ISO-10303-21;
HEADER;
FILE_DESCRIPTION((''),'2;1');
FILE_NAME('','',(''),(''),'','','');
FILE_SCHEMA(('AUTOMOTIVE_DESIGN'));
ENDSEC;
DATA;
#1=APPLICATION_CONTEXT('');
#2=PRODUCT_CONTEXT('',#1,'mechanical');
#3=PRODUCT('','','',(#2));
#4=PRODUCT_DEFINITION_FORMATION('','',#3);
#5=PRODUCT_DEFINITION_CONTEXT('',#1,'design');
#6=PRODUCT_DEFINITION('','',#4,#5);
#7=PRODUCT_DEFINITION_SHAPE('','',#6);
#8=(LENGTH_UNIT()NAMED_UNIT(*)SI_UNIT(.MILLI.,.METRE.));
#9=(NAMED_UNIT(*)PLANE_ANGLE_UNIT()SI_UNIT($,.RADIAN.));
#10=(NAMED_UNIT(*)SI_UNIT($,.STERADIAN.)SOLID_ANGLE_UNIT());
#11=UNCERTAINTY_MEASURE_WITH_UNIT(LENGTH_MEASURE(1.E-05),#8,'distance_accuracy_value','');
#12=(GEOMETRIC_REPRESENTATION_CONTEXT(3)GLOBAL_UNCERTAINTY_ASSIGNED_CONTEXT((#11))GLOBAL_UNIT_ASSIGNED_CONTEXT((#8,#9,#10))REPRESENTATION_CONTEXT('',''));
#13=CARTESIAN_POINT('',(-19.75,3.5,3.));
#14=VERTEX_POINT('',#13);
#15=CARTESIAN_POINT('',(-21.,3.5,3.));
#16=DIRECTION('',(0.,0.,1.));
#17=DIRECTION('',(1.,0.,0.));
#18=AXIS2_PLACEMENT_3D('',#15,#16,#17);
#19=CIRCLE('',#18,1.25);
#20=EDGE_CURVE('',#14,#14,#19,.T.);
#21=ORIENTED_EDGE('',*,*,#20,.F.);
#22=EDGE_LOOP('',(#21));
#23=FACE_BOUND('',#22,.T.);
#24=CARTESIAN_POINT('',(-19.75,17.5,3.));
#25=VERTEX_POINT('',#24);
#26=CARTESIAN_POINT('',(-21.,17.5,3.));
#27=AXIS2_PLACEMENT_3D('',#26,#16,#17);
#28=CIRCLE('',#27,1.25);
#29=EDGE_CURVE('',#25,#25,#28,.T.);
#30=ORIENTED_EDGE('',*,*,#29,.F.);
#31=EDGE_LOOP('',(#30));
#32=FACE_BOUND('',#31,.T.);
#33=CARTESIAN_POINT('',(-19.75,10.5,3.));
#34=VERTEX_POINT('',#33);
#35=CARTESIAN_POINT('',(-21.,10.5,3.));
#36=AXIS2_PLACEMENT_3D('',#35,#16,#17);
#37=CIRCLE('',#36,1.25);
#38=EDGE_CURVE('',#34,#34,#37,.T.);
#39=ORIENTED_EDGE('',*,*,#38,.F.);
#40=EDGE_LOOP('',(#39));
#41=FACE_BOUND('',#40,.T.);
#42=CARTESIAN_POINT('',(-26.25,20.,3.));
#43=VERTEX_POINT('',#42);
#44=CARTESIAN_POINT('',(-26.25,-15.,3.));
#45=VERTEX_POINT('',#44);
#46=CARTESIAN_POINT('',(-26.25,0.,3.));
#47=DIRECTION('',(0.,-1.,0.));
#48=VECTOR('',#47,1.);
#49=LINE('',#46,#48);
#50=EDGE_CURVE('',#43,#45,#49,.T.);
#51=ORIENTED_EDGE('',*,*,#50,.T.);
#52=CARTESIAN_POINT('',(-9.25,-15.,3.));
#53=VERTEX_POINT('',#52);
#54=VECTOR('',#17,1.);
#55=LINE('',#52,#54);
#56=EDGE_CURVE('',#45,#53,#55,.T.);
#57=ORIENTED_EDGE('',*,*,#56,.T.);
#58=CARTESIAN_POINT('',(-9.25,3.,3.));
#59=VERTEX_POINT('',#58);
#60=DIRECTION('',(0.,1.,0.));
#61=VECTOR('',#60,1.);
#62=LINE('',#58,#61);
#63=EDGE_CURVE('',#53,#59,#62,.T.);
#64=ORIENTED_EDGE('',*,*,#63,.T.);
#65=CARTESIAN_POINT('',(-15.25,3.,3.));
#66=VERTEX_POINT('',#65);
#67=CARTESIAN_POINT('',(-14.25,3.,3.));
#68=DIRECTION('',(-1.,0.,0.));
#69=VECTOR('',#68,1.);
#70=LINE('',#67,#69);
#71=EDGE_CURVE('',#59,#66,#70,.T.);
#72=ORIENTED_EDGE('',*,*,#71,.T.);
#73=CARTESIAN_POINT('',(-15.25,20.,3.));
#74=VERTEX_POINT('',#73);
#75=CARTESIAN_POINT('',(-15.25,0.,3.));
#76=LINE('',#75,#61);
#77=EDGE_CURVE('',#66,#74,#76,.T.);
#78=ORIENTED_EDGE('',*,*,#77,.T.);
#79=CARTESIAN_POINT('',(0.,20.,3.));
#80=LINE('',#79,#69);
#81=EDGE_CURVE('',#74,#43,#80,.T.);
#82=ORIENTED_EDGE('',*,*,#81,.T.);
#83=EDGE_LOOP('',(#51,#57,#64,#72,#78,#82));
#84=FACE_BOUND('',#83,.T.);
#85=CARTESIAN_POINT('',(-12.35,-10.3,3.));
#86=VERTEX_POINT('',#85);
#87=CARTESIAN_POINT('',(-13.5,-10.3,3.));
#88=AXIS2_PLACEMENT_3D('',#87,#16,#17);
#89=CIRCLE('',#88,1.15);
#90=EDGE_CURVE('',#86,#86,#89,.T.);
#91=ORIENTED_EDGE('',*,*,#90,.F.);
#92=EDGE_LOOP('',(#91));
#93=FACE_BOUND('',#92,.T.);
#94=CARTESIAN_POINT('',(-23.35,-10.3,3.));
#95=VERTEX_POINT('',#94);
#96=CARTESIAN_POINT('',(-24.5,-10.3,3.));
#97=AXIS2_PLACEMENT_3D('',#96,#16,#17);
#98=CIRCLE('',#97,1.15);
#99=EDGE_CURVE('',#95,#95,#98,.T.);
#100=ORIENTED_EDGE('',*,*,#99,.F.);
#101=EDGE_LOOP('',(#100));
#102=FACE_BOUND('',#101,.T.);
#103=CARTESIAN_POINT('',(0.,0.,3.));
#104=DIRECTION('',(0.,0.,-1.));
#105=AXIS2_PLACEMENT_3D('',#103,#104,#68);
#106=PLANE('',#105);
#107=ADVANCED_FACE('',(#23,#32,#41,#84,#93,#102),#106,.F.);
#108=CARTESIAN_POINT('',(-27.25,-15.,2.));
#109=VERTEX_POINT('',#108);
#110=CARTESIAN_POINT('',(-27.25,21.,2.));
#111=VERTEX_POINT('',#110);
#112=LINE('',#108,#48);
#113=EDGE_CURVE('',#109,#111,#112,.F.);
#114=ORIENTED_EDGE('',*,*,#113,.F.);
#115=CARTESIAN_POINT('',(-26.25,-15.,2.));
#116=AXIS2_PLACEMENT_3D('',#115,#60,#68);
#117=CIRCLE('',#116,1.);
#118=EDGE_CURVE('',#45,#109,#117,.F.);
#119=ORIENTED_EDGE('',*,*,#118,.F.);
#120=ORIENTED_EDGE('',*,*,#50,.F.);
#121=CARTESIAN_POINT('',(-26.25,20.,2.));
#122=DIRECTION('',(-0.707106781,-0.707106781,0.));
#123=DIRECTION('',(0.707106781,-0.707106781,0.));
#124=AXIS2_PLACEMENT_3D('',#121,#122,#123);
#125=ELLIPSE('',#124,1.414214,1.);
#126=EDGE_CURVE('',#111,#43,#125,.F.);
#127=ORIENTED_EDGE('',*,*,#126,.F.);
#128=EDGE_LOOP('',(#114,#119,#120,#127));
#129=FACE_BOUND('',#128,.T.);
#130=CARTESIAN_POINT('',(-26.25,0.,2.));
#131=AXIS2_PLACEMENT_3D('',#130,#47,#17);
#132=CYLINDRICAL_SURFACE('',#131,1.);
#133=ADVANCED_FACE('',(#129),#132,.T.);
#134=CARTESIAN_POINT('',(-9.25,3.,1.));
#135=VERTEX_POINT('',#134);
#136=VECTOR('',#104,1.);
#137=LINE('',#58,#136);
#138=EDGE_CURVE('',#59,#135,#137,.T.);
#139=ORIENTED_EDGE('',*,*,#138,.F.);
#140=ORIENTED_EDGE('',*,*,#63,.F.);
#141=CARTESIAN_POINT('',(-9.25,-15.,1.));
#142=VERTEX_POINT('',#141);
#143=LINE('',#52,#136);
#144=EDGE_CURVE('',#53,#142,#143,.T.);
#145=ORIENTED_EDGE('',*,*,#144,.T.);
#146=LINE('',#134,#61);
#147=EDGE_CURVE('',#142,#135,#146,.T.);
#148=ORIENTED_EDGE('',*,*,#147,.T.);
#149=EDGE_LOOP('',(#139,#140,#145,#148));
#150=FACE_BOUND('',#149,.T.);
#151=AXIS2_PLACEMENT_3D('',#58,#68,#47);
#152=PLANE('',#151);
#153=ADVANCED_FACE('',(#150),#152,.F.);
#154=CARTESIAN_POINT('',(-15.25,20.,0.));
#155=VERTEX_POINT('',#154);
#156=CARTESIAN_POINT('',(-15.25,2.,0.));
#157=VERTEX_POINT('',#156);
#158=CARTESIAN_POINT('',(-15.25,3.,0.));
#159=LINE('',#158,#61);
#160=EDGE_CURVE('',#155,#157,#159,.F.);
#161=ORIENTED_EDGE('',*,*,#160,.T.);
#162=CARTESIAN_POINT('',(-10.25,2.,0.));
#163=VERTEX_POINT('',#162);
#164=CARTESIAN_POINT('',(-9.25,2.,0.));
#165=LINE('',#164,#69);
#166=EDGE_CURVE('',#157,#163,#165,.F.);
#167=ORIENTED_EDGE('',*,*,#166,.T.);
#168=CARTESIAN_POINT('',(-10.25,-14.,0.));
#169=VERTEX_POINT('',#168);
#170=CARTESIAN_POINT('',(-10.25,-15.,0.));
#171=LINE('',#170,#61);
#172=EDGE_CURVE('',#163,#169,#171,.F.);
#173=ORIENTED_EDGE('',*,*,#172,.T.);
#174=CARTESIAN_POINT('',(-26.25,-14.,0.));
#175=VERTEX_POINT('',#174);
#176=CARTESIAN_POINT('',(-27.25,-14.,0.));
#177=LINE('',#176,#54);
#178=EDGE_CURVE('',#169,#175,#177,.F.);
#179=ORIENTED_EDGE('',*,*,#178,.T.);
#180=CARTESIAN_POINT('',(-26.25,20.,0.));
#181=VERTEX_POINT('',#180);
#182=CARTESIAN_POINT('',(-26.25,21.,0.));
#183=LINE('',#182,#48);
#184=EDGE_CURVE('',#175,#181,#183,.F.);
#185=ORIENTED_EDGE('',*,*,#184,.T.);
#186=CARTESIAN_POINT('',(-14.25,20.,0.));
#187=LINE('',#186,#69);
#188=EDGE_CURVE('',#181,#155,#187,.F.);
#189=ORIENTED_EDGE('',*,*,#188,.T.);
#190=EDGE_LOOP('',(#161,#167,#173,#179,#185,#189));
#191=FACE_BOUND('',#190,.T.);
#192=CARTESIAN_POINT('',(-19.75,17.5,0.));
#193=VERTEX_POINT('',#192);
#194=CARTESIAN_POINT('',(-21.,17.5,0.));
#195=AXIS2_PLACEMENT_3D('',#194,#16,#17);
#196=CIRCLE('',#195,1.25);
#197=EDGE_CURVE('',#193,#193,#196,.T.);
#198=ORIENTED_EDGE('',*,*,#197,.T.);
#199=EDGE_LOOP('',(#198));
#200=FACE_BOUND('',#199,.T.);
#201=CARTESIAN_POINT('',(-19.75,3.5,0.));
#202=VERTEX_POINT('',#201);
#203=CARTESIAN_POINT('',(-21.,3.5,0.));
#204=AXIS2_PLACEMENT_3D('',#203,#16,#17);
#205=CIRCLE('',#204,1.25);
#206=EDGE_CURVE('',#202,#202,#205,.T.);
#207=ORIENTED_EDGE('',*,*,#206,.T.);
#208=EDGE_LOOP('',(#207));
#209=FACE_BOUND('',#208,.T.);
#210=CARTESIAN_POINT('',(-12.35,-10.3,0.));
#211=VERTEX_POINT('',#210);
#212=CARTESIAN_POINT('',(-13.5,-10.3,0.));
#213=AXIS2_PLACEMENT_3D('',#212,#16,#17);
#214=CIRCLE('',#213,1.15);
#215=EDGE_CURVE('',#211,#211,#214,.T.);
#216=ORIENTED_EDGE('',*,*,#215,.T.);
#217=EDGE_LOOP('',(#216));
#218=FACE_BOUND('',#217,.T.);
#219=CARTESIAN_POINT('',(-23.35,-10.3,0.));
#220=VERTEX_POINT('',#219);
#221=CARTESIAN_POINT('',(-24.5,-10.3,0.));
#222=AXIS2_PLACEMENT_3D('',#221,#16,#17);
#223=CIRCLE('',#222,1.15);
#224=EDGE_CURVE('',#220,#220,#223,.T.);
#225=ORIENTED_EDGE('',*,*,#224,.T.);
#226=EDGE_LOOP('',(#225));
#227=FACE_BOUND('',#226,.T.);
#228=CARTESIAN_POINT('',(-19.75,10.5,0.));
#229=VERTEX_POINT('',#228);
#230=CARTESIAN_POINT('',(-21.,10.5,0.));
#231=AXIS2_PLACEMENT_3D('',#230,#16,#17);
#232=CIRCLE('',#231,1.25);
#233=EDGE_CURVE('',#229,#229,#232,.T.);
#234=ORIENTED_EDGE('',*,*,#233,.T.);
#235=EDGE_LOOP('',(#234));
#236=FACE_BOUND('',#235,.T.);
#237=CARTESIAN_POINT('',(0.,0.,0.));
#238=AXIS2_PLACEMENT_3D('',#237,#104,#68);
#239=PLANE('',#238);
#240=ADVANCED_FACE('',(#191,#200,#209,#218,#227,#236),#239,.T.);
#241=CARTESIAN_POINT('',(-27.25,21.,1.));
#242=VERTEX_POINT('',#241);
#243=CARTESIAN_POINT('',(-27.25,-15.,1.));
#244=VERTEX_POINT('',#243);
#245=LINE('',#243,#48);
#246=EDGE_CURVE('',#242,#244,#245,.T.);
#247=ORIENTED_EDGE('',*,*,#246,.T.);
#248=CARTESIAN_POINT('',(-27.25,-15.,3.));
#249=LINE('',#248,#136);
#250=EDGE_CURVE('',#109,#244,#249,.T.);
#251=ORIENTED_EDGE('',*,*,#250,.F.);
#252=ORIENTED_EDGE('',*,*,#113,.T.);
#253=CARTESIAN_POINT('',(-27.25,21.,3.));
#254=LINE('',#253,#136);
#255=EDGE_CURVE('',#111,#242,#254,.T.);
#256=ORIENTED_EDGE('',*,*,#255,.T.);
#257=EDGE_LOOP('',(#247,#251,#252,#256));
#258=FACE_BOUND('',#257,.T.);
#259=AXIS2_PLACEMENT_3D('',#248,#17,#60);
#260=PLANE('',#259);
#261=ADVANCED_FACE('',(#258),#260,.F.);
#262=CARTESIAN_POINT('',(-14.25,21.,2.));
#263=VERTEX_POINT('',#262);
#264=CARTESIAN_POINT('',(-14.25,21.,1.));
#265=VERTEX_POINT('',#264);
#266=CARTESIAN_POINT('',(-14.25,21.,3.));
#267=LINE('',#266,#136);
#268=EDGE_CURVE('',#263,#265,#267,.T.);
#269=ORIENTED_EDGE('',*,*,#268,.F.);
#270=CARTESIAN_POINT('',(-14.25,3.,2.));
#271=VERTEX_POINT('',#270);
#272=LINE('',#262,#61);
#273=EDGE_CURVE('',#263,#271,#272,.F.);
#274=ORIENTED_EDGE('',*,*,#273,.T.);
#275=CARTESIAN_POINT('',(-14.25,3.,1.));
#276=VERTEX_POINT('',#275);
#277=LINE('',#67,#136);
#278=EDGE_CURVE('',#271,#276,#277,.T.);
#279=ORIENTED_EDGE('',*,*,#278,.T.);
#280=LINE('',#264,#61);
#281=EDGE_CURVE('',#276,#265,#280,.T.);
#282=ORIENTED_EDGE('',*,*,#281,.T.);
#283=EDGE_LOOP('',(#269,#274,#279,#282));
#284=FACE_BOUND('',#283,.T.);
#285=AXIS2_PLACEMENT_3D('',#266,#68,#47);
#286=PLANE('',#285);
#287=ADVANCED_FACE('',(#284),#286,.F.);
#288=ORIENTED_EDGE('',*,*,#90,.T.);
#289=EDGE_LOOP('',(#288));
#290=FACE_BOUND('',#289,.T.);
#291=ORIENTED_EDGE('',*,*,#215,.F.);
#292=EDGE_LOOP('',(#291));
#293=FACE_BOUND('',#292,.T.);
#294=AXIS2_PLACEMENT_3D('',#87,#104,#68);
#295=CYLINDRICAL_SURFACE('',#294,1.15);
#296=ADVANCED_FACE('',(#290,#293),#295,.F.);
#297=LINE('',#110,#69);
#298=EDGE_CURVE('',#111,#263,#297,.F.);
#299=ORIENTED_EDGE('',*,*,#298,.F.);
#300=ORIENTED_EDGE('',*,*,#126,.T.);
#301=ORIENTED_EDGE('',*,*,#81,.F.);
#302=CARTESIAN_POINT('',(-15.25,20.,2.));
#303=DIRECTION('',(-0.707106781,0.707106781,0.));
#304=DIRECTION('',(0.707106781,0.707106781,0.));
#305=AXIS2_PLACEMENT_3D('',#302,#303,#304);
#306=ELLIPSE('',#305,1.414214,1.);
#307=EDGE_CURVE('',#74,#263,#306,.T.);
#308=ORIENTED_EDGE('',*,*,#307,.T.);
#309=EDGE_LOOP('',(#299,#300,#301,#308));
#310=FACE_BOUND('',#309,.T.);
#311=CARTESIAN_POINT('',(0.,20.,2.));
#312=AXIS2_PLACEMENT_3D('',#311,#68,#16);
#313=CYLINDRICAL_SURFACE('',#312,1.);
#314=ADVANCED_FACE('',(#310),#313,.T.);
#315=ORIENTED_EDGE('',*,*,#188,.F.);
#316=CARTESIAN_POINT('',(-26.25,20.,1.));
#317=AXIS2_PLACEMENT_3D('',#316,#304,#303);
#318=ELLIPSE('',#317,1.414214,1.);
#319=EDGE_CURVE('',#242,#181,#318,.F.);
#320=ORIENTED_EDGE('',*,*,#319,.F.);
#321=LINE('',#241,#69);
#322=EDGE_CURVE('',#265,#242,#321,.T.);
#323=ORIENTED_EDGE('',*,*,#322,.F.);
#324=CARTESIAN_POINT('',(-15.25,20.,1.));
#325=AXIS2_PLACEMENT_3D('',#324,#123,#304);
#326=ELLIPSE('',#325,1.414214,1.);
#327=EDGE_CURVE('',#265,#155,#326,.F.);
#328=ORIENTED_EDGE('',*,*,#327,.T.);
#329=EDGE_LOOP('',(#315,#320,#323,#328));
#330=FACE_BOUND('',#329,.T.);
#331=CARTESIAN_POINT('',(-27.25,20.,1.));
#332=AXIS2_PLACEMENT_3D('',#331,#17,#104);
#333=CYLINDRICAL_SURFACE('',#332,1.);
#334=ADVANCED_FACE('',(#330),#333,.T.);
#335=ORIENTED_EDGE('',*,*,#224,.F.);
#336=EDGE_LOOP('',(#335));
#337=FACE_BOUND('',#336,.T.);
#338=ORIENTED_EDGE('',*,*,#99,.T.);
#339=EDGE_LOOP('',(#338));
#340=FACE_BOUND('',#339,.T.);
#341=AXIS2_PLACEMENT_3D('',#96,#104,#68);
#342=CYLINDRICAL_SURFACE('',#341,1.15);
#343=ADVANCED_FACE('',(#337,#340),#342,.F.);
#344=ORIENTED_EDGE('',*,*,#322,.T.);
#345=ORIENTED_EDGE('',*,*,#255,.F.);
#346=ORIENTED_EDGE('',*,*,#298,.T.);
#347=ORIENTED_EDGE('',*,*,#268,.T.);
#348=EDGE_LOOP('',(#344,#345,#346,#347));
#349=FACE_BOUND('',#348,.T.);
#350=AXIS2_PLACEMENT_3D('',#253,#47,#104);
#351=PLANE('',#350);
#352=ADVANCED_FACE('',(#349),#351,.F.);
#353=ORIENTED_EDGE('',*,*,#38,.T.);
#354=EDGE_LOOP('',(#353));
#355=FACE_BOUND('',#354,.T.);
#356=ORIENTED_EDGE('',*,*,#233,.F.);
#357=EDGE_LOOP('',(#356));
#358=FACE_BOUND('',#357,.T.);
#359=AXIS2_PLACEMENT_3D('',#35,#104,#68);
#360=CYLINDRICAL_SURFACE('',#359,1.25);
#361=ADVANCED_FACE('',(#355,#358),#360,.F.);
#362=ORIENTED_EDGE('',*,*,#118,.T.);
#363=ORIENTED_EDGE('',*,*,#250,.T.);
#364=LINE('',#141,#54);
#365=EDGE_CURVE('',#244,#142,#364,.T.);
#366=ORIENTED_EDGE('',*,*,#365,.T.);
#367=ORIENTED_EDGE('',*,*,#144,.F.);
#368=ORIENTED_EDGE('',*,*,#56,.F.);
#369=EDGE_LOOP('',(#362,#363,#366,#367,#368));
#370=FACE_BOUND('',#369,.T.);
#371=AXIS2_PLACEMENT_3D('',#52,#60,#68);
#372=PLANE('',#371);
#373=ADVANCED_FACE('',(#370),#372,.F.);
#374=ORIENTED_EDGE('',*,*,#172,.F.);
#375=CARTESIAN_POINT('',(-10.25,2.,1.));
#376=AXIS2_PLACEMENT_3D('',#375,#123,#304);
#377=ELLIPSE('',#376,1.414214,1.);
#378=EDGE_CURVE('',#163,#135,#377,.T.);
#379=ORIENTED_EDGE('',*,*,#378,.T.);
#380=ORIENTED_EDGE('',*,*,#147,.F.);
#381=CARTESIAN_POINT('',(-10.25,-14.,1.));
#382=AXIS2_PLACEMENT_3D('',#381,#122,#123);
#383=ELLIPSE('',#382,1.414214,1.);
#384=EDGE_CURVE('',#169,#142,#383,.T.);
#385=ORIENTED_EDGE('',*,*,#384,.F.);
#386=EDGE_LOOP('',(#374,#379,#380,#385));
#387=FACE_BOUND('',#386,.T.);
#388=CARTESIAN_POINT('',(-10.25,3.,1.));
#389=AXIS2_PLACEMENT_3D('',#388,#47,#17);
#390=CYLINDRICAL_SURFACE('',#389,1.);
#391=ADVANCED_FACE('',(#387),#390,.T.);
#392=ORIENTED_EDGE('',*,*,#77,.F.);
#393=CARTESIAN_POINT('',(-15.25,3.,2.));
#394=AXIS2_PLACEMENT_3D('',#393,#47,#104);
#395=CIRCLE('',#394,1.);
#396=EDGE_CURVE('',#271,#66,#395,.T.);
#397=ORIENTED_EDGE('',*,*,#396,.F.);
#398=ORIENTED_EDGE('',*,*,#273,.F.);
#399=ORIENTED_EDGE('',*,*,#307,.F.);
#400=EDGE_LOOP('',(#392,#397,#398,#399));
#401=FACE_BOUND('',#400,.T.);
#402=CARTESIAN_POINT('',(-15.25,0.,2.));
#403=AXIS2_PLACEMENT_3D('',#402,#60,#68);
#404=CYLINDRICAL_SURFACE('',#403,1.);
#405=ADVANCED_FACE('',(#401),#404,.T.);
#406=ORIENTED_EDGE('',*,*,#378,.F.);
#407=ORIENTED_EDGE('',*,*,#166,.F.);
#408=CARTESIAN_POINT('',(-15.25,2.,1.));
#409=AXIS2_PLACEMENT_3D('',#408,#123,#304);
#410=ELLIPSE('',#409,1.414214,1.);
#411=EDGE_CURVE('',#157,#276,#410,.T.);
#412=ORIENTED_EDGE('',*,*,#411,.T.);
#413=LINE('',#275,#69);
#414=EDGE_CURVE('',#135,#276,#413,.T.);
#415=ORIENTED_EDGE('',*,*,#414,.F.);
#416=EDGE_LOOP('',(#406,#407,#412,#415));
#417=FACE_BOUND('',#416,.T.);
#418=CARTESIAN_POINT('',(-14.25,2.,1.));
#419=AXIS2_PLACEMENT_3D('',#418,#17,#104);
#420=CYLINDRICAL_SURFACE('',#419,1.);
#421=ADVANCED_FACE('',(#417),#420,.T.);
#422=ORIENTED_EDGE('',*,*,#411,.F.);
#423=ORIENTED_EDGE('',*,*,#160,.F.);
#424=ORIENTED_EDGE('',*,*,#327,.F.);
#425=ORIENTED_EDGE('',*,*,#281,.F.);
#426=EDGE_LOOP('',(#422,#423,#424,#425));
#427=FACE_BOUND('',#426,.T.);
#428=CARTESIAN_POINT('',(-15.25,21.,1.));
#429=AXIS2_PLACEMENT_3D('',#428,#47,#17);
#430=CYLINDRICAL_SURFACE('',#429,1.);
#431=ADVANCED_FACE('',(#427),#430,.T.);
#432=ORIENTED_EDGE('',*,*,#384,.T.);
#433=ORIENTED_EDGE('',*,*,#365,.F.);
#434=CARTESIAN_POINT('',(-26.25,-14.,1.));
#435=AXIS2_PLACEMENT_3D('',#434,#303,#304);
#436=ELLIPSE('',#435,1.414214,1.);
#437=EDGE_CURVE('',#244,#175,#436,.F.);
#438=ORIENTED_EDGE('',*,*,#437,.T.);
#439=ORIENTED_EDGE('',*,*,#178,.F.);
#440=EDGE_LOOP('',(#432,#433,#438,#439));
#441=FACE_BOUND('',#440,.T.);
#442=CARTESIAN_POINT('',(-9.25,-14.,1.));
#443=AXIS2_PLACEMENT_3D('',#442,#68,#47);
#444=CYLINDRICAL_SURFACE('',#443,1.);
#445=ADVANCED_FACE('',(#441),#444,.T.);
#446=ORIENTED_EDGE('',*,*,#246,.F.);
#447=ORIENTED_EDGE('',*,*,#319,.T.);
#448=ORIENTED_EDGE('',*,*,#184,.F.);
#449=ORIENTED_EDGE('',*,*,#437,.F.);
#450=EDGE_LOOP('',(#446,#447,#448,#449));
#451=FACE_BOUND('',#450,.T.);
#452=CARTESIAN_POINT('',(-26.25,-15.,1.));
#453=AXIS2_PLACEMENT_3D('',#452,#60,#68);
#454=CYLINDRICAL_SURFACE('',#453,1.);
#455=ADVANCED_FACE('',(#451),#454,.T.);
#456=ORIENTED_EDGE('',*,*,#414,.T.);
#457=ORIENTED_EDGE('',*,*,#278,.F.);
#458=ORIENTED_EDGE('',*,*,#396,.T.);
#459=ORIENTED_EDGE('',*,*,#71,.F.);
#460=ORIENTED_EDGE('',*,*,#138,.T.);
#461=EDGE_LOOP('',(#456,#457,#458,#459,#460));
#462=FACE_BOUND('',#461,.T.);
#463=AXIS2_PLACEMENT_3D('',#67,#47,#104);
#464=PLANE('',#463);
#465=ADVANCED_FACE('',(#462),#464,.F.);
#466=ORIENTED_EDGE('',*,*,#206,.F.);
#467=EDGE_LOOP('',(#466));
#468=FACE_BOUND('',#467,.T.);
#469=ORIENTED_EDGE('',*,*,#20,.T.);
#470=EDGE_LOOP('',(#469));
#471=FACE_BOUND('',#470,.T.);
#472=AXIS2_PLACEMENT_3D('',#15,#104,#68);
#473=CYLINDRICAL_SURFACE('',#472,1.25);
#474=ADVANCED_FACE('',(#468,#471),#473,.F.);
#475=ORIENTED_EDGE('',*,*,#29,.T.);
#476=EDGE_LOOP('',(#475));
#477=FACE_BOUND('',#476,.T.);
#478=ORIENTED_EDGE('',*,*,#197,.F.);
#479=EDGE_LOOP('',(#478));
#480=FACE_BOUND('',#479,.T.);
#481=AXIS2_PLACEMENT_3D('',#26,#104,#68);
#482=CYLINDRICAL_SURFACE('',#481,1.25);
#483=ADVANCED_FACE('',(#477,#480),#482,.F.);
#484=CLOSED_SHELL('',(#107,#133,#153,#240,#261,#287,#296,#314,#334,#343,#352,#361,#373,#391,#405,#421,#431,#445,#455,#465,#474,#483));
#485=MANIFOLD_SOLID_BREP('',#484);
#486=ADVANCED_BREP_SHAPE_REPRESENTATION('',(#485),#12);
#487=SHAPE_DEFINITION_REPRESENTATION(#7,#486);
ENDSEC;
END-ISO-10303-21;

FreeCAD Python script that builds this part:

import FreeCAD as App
import Part
import Sketcher

V = App.Vector


def edges_at(feature, points):
    """Names of the edges that pass closest to the given points."""
    edges = feature.Shape.Edges
    near = lambda p: min(range(len(edges)), key=lambda i: edges[i].distToShape(Part.Vertex(*p))[0])
    return sorted({f"Edge{near(p) + 1}" for p in points})


def add_polygon(sketch, points):
    """Adds a closed chain of lines whose ends are joined by coincident constraints."""
    first, n = sketch.GeometryCount, len(points)
    for a, b in zip(points, points[1:] + points[:1]):
        sketch.addGeometry(Part.LineSegment(App.Vector(*a, 0), App.Vector(*b, 0)), False)
    for i in range(n):
        sketch.addConstraint(Sketcher.Constraint("Coincident", first + i, 2, first + (i + 1) % n, 1))

doc = App.newDocument("Part")
body = doc.addObject("PartDesign::Body", "Body")

sketch1 = doc.addObject("Sketcher::SketchObject", "Sketch")
body.addObject(sketch1)
sketch1.AttachmentSupport = (doc.XY_Plane, [""])
sketch1.MapMode = "FlatFace"
add_polygon(sketch1, [(-27.2, 21), (-27.2, -15), (-9.2, -15), (-9.2, 3), (-14.2, 3), (-14.2, 21)])
sketch1.addGeometry(Part.Circle(V(-24.5, -10.3, 0), V(0, 0, 1), 1.1), False)
sketch1.addGeometry(Part.Circle(V(-21, 3.5, 0), V(0, 0, 1), 1.2), False)
sketch1.addGeometry(Part.Circle(V(-13.5, -10.3, 0), V(0, 0, 1), 1.1), False)
sketch1.addGeometry(Part.Circle(V(-21, 10.5, 0), V(0, 0, 1), 1.2), False)
sketch1.addGeometry(Part.Circle(V(-21, 17.5, 0), V(0, 0, 1), 1.2), False)
sketch1.addConstraint(Sketcher.Constraint("Vertical", 0))
sketch1.addConstraint(Sketcher.Constraint("Horizontal", 1))
sketch1.addConstraint(Sketcher.Constraint("Vertical", 2))
sketch1.addConstraint(Sketcher.Constraint("Horizontal", 3))
sketch1.addConstraint(Sketcher.Constraint("Vertical", 4))
sketch1.addConstraint(Sketcher.Constraint("Horizontal", 5))
sketch1.addConstraint(Sketcher.Constraint("Equal", 6, 8))
sketch1.addConstraint(Sketcher.Constraint("Equal", 7, 9))
sketch1.addConstraint(Sketcher.Constraint("Equal", 9, 10))
sketch1.addConstraint(Sketcher.Constraint("Horizontal", 6, 3, 8, 3))
sketch1.addConstraint(Sketcher.Constraint("Vertical", 7, 3, 9, 3))
sketch1.addConstraint(Sketcher.Constraint("Vertical", 9, 3, 10, 3))
sketch1.addConstraint(Sketcher.Constraint("Equal", 1, 2))
sketch1.addConstraint(Sketcher.Constraint("Equal", 2, 4))
sketch1.addConstraint(Sketcher.Constraint("Diameter", 6, 2.3))
sketch1.addConstraint(Sketcher.Constraint("Diameter", 7, 2.5))
sketch1.addConstraint(Sketcher.Constraint("DistanceX", 1, 1, 1, 2, 18.0))
sketch1.addConstraint(Sketcher.Constraint("DistanceX", 3, 2, 3, 1, 5.0))
sketch1.addConstraint(Sketcher.Constraint("DistanceX", 7, 3, -1, 1, 21.0))
sketch1.addConstraint(Sketcher.Constraint("DistanceY", 0, 2, -1, 1, 15.0))
sketch1.addConstraint(Sketcher.Constraint("DistanceX", 6, 3, 8, 3, 11.0))
sketch1.addConstraint(Sketcher.Constraint("DistanceY", 7, 3, 9, 3, 7.0))
sketch1.addConstraint(Sketcher.Constraint("DistanceY", 9, 3, 10, 3, 7.0))
sketch1.addConstraint(Sketcher.Constraint("DistanceX", 6, 3, -1, 1, 24.5))
sketch1.addConstraint(Sketcher.Constraint("DistanceY", 6, 3, -1, 1, 10.3))
sketch1.addConstraint(Sketcher.Constraint("DistanceY", -1, 1, 7, 3, 3.5))
sketch1.addConstraint(Sketcher.Constraint("DistanceX", 0, 2, -1, 1, 27.25))
pad1 = doc.addObject("PartDesign::Pad", "Pad")
body.addObject(pad1)
pad1.Profile = sketch1
pad1.Length = 3
doc.recompute()

fillet = doc.addObject("PartDesign::Fillet", "Fillet")
body.addObject(fillet)
fillet.Base = (pad1, edges_at(pad1, [
    (-20.75, 21, 0),
    (-14.25, 12, 3),
    (-20.75, 21, 3),
    (-14.25, 12, 0),
    (-11.75, 3, 0),
    (-9.25, -6, 0),
    (-18.25, -15, 0),
    (-27.25, 3, 3),
    (-27.25, 3, 0),
]))
fillet.Radius = 1

doc.recompute()
